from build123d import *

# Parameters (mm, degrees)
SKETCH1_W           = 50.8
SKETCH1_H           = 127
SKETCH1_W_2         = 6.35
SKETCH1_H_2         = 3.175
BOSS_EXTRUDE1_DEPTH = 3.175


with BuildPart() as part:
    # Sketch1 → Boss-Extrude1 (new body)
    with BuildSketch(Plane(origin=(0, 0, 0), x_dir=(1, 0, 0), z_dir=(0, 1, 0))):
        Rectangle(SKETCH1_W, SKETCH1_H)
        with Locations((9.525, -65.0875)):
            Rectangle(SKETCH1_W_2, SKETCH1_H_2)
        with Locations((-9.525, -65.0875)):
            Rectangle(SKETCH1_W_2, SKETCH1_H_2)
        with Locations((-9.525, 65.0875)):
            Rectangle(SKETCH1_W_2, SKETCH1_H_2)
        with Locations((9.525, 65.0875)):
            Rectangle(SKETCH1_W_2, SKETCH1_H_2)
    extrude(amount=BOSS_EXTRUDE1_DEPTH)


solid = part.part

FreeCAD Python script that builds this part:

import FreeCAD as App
import Part
import Sketcher
Q = App.Units.Quantity

doc = App.newDocument("Part")
body = doc.addObject("PartDesign::Body", "Body")

# Sketch on XZ plane
sketch1 = doc.addObject("Sketcher::SketchObject", "Sketch")
body.addObject(sketch1)
sketch1.AttachmentSupport = (doc.XZ_Plane, [""])
sketch1.MapMode = "FlatFace"
sketch1.addGeometry([
    Part.LineSegment(App.Vector(-25.4, -63.5, 0), App.Vector(-25.4, 63.5, 0)),  # 0
    Part.LineSegment(App.Vector(-25.4, 63.5, 0), App.Vector(-12.7, 63.5, 0)),  # 1
    Part.LineSegment(App.Vector(-12.7, 63.5, 0), App.Vector(-12.7, 66.675, 0)),  # 2
    Part.LineSegment(App.Vector(-12.7, 66.675, 0), App.Vector(-6.35, 66.675, 0)),  # 3
    Part.LineSegment(App.Vector(-6.35, 66.675, 0), App.Vector(-6.35, 63.5, 0)),  # 4
    Part.LineSegment(App.Vector(-6.35, 63.5, 0), App.Vector(6.35, 63.5, 0)),  # 5
    Part.LineSegment(App.Vector(6.35, 63.5, 0), App.Vector(6.35, 66.675, 0)),  # 6
    Part.LineSegment(App.Vector(6.35, 66.675, 0), App.Vector(12.7, 66.675, 0)),  # 7
    Part.LineSegment(App.Vector(12.7, 66.675, 0), App.Vector(12.7, 63.5, 0)),  # 8
    Part.LineSegment(App.Vector(12.7, 63.5, 0), App.Vector(25.4, 63.5, 0)),  # 9
    Part.LineSegment(App.Vector(25.4, 63.5, 0), App.Vector(25.4, -63.5, 0)),  # 10
    Part.LineSegment(App.Vector(25.4, -63.5, 0), App.Vector(12.7, -63.5, 0)),  # 11
    Part.LineSegment(App.Vector(12.7, -63.5, 0), App.Vector(12.7, -66.675, 0)),  # 12
    Part.LineSegment(App.Vector(12.7, -66.675, 0), App.Vector(6.35, -66.675, 0)),  # 13
    Part.LineSegment(App.Vector(6.35, -66.675, 0), App.Vector(6.35, -63.5, 0)),  # 14
    Part.LineSegment(App.Vector(6.35, -63.5, 0), App.Vector(-6.35, -63.5, 0)),  # 15
    Part.LineSegment(App.Vector(-6.35, -63.5, 0), App.Vector(-6.35, -66.675, 0)),  # 16
    Part.LineSegment(App.Vector(-6.35, -66.675, 0), App.Vector(-12.7, -66.675, 0)),  # 17
    Part.LineSegment(App.Vector(-12.7, -66.675, 0), App.Vector(-12.7, -63.5, 0)),  # 18
    Part.LineSegment(App.Vector(-12.7, -63.5, 0), App.Vector(-25.4, -63.5, 0)),  # 19
], False)
sketch1.addConstraint([
    Sketcher.Constraint("Coincident", 0, 2, 1, 1),
    Sketcher.Constraint("Coincident", 1, 2, 2, 1),
    Sketcher.Constraint("Coincident", 2, 2, 3, 1),
    Sketcher.Constraint("Coincident", 3, 2, 4, 1),
    Sketcher.Constraint("Coincident", 4, 2, 5, 1),
    Sketcher.Constraint("Coincident", 5, 2, 6, 1),
    Sketcher.Constraint("Coincident", 6, 2, 7, 1),
    Sketcher.Constraint("Coincident", 7, 2, 8, 1),
    Sketcher.Constraint("Coincident", 8, 2, 9, 1),
    Sketcher.Constraint("Coincident", 9, 2, 10, 1),
    Sketcher.Constraint("Coincident", 10, 2, 11, 1),
    Sketcher.Constraint("Coincident", 11, 2, 12, 1),
    Sketcher.Constraint("Coincident", 12, 2, 13, 1),
    Sketcher.Constraint("Coincident", 13, 2, 14, 1),
    Sketcher.Constraint("Coincident", 14, 2, 15, 1),
    Sketcher.Constraint("Coincident", 15, 2, 16, 1),
    Sketcher.Constraint("Coincident", 16, 2, 17, 1),
    Sketcher.Constraint("Coincident", 17, 2, 18, 1),
    Sketcher.Constraint("Coincident", 18, 2, 19, 1),
    Sketcher.Constraint("Coincident", 19, 2, 0, 1),
    Sketcher.Constraint("Vertical", 0),
    Sketcher.Constraint("Horizontal", 1),
    Sketcher.Constraint("Vertical", 2),
    Sketcher.Constraint("Horizontal", 3),
    Sketcher.Constraint("Vertical", 4),
    Sketcher.Constraint("Horizontal", 5),
    Sketcher.Constraint("Vertical", 6),
    Sketcher.Constraint("Horizontal", 7),
    Sketcher.Constraint("Vertical", 8),
    Sketcher.Constraint("Horizontal", 9),
    Sketcher.Constraint("Vertical", 10),
    Sketcher.Constraint("Horizontal", 11),
    Sketcher.Constraint("Vertical", 12),
    Sketcher.Constraint("Horizontal", 13),
    Sketcher.Constraint("Vertical", 14),
    Sketcher.Constraint("Horizontal", 15),
    Sketcher.Constraint("Vertical", 16),
    Sketcher.Constraint("Horizontal", 17),
    Sketcher.Constraint("Vertical", 18),
    Sketcher.Constraint("Horizontal", 19),
    Sketcher.Constraint("Symmetric", 0, 2, 10, 2, -1, 1),
    Sketcher.Constraint("Symmetric", 2, 2, 12, 2, -1, 1),
    Sketcher.Constraint("Symmetric", 4, 2, 14, 2, -1, 1),
    Sketcher.Constraint("Symmetric", 6, 2, 16, 2, -1, 1),
    Sketcher.Constraint("Symmetric", 8, 2, 18, 2, -1, 1),
    Sketcher.Constraint("Symmetric", 3, 2, 6, 2, -2),
    Sketcher.Constraint("Symmetric", 1, 2, 8, 2, -2),
    Sketcher.Constraint("Horizontal", 1, 2, 4, 2),
    Sketcher.Constraint("Equal", 1, 5),
    Sketcher.Constraint("DistanceY", 0, 1, 0, 2, Q("5 in")),
    Sketcher.Constraint("DistanceX", 1, 1, 1, 2, Q("0.5 in")),
    Sketcher.Constraint("DistanceX", 0, 2, -1, 1, Q("1 in")),
    Sketcher.Constraint("DistanceY", 2, 1, 2, 2, Q("0.125 in")),
])
pad1 = doc.addObject("PartDesign::Pad", "Pad")
body.addObject(pad1)
pad1.Profile = sketch1
pad1.Length = Q("0.125 in")
pad1.Reversed = True

doc.recompute()
